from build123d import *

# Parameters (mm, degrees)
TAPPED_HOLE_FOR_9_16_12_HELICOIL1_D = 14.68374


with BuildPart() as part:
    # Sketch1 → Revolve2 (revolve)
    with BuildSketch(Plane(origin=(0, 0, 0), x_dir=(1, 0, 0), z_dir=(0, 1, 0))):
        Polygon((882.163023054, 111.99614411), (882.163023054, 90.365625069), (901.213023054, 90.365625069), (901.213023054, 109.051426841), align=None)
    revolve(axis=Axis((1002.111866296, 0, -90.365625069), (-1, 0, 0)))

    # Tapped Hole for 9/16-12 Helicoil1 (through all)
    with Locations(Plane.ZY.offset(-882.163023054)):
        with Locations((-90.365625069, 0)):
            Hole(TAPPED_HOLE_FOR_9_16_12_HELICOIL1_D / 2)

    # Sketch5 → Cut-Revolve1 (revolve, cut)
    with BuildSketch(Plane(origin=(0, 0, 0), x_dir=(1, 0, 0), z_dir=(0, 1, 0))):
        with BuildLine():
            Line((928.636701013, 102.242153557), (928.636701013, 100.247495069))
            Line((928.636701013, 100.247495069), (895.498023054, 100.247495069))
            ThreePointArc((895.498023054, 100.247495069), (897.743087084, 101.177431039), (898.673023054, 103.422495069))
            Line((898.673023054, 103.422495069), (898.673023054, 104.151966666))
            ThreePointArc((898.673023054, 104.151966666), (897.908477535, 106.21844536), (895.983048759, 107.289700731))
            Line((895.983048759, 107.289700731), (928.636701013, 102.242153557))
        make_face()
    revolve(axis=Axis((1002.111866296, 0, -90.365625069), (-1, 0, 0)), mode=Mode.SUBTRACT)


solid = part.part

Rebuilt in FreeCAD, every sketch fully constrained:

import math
import FreeCAD as App
import Part
import Sketcher
Q = App.Units.Quantity

doc = App.newDocument("Part")
params = doc.addObject("Spreadsheet::Sheet", "Params")
for row, (alias, value) in enumerate([
    ("sketch1_width", "0.75 in"),
    ("revolution_angle", "360 deg"),
    ("hole_diameter", "0.5781 in"),
    ("sketch3_radius", "0.125 in"),
    ("groove_angle", "360 deg"),
], start=1):
    params.set(f"A{row}", alias)
    params.set(f"B{row}", "=" + value)
    params.setAlias(f"B{row}", alias)

body = doc.addObject("PartDesign::Body", "Body")

sketch1 = body.newObject("Sketcher::SketchObject", "Sketch")
sketch1.AttachmentSupport = (doc.getObject("XZ_Plane"), [""])
sketch1.MapMode = "FlatFace"
sketch1.addGeometry([
    Part.LineSegment(App.Vector(882, -112, 0), App.Vector(882, -90, 0)),
    Part.LineSegment(App.Vector(882, -90, 0), App.Vector(901, -90, 0)),
    Part.LineSegment(App.Vector(901, -90, 0), App.Vector(901, -109, 0)),
    Part.LineSegment(App.Vector(901, -109, 0), App.Vector(882, -112, 0)),
], False)
sketch1.addGeometry(Part.LineSegment(App.Vector(901, -90, 0), App.Vector(882, -90, 0)), True)
sketch1.addConstraint([
    Sketcher.Constraint("Coincident", 0, 2, 1, 1),
    Sketcher.Constraint("Coincident", 1, 2, 2, 1),
    Sketcher.Constraint("Coincident", 2, 2, 3, 1),
    Sketcher.Constraint("Coincident", 3, 2, 0, 1),
    Sketcher.Constraint("Vertical", 0),
    Sketcher.Constraint("Horizontal", 1),
    Sketcher.Constraint("Vertical", 2),
    Sketcher.Constraint("Horizontal", 4),
    Sketcher.Constraint("Coincident", 4, 1, 1, 2),
    Sketcher.Constraint("Vertical", 3, 2, 4, 2),
    Sketcher.Constraint("DistanceX", 1, 1, 1, 2, Q("0.75 in")),
    Sketcher.Constraint("DistanceY", 2, 2, 2, 1, 18.685802),
    Sketcher.Constraint("DistanceY", 0, 1, 0, 2, 21.630519),
    Sketcher.Constraint("DistanceX", -1, 1, 0, 2, 882.163023),
    Sketcher.Constraint("DistanceY", 0, 2, -1, 1, 90.365625),
])
sketch1.setExpression("Constraints[10]", "Params.sketch1_width")
revolution = body.newObject("PartDesign::Revolution", "Revolution")
revolution.Profile = sketch1
revolution.ReferenceAxis = (sketch1, ["Axis0"])
revolution.setExpression("Angle", "Params.revolution_angle")

sketch2 = body.newObject("Sketcher::SketchObject", "Sketch001")
sketch2.AttachmentSupport = (doc.getObject("YZ_Plane"), [""])
sketch2.MapMode = "FlatFace"
sketch2.AttachmentOffset = App.Placement(App.Vector(0, 0, 882.163023), App.Rotation())
sketch2.addGeometry(Part.Circle(App.Vector(0, -90, 0), App.Vector(0, 0, 1), 7), False)
sketch2.addConstraint([
    Sketcher.Constraint("PointOnObject", 0, 3, -2),
    Sketcher.Constraint("Diameter", 0, Q("0.5781 in")),
    Sketcher.Constraint("DistanceY", 0, 3, -1, 1, 90.365625),
])
doc.recompute()
hole = body.newObject("PartDesign::Hole", "Hole")
hole.Profile = sketch2
hole.ThreadType = "None"
hole.setExpression("Diameter", "Params.hole_diameter")
hole.DepthType = "ThroughAll"
hole.Reversed = True

sketch3 = body.newObject("Sketcher::SketchObject", "Sketch002")
sketch3.AttachmentSupport = (doc.getObject("XZ_Plane"), [""])
sketch3.MapMode = "FlatFace"
sketch3.addGeometry([
    Part.LineSegment(App.Vector(928.6, -100.2, 0), App.Vector(928.6, -102.2, 0)),
    Part.LineSegment(App.Vector(928.6, -102.2, 0), App.Vector(896, -107.3, 0)),
    Part.ArcOfCircle(Part.Circle(App.Vector(895.5, -104.2, 0), App.Vector(0, 0, 1), 3.2), math.radians(-81), math.radians(0)),
    Part.LineSegment(App.Vector(898.7, -104.2, 0), App.Vector(898.7, -103.4, 0)),
    Part.ArcOfCircle(Part.Circle(App.Vector(895.5, -103.4, 0), App.Vector(0, 0, 1), 3.2), math.radians(0), math.radians(90)),
    Part.LineSegment(App.Vector(895.5, -100.2, 0), App.Vector(928.6, -100.2, 0)),
], False)
sketch3.addGeometry(Part.LineSegment(App.Vector(928.6, -90.4, 0), App.Vector(895.5, -90.4, 0)), True)
sketch3.addConstraint([
    Sketcher.Constraint("Coincident", 0, 2, 1, 1),
    Sketcher.Constraint("Tangent", 1, 2, 2, 1),
    Sketcher.Constraint("Tangent", 2, 2, 3, 1),
    Sketcher.Constraint("Tangent", 3, 2, 4, 1),
    Sketcher.Constraint("Tangent", 4, 2, 5, 1),
    Sketcher.Constraint("Coincident", 5, 2, 0, 1),
    Sketcher.Constraint("Vertical", 0),
    Sketcher.Constraint("Vertical", 3),
    Sketcher.Constraint("Horizontal", 5),
    Sketcher.Constraint("Horizontal", 6),
    Sketcher.Constraint("Equal", 2, 4),
    Sketcher.Constraint("Vertical", 5, 2, 6, 1),
    Sketcher.Constraint("Vertical", 4, 2, 6, 2),
    Sketcher.Constraint("Radius", 2, Q("0.125 in")),
    Sketcher.Constraint("DistanceX", -1, 1, 0, 2, Q("36.5605 in")),
    Sketcher.Constraint("DistanceY", 0, 2, 0, 1, 1.994658),
    Sketcher.Constraint("DistanceY", 3, 1, 3, 2, 0.729472),
    Sketcher.Constraint("DistanceY", 1, 2, -1, 1, 107.289701),
    Sketcher.Constraint("Distance", 1, 33.04147),
    Sketcher.Constraint("DistanceY", 5, 2, 6, 1, 9.88187),
])
sketch3.setExpression("Constraints[13]", "Params.sketch3_radius")
groove = body.newObject("PartDesign::Groove", "Groove")
groove.Profile = sketch3
groove.ReferenceAxis = (sketch3, ["Axis0"])
groove.setExpression("Angle", "Params.groove_angle")

doc.recompute()
